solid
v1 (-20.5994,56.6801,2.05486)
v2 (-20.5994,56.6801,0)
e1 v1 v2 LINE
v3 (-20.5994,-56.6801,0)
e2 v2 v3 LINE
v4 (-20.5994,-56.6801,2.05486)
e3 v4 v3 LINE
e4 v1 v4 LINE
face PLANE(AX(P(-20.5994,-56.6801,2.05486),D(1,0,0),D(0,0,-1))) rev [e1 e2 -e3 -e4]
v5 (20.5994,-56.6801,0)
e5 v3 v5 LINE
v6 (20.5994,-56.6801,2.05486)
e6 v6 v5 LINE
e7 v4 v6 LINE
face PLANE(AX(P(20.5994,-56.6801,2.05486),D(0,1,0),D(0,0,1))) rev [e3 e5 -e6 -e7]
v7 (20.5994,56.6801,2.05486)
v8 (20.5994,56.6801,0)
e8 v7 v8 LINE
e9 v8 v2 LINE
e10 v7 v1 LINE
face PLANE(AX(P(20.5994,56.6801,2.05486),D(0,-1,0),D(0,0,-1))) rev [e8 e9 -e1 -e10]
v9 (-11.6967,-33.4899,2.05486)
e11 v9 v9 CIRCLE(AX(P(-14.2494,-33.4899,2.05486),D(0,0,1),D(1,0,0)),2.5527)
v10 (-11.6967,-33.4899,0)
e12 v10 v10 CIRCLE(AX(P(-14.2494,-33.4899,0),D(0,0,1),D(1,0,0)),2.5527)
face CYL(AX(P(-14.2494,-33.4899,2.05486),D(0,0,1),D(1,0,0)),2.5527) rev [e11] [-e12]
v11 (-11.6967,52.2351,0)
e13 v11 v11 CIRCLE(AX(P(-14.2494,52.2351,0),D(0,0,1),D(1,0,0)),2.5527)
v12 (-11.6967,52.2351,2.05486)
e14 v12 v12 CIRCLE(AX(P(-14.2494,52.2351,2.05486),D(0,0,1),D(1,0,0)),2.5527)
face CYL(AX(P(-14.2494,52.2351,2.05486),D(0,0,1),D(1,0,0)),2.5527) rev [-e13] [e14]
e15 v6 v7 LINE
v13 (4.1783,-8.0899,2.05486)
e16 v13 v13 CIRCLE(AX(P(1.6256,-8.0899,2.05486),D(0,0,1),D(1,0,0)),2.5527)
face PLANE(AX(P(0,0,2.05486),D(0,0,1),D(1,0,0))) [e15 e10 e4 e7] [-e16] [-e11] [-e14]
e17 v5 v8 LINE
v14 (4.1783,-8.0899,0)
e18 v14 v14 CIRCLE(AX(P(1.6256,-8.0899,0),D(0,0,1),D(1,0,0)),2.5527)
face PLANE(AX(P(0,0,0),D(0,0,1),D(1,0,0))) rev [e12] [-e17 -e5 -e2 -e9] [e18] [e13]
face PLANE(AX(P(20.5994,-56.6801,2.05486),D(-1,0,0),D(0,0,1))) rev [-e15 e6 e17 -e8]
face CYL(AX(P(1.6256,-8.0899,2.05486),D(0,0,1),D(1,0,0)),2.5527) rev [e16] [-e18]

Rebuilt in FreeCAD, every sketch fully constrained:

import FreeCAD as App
import Part
import Sketcher

V = App.Vector
Q = App.Units.Quantity


def add_polygon(sketch, points):
    """Adds a closed chain of lines whose ends are joined by coincident constraints."""
    first, n = sketch.GeometryCount, len(points)
    for a, b in zip(points, points[1:] + points[:1]):
        sketch.addGeometry(Part.LineSegment(App.Vector(*a, 0), App.Vector(*b, 0)), False)
    for i in range(n):
        sketch.addConstraint(Sketcher.Constraint("Coincident", first + i, 2, first + (i + 1) % n, 1))

doc = App.newDocument("Part")
params = doc.addObject("Spreadsheet::Sheet", "Params")
for row, (alias, value) in enumerate([
    ("sketch1_width", "1.622 in"),
    ("sketch1_height", "4.463 in"),
    ("pad1_length", "0.0809 in"),
    ("sketch2_diameter", "0.201 in"),
    ("hole_diameter", "0.201 in"),
], start=1):
    params.set(f"A{row}", alias)
    params.set(f"B{row}", "=" + value)
    params.setAlias(f"B{row}", alias)

body = doc.addObject("PartDesign::Body", "Body")

# Sketch on XY plane
sketch1 = body.newObject("Sketcher::SketchObject", "Sketch")
sketch1.AttachmentSupport = (doc.getObject("XY_Plane"), [""])
sketch1.MapMode = "FlatFace"
add_polygon(sketch1, [(-21, 57), (-21, -57), (21, -57), (21, 57)])  # lines 0-3
sketch1.addConstraint(Sketcher.Constraint("Vertical", 0))
sketch1.addConstraint(Sketcher.Constraint("Horizontal", 1))
sketch1.addConstraint(Sketcher.Constraint("Vertical", 2))
sketch1.addConstraint(Sketcher.Constraint("Horizontal", 3))
sketch1.addConstraint(Sketcher.Constraint("Symmetric", 0, 2, 2, 2, -1, 1))
sketch1.addConstraint(Sketcher.Constraint("DistanceX", 1, 1, 1, 2, Q("1.622 in")))
sketch1.addConstraint(Sketcher.Constraint("DistanceY", 0, 2, 0, 1, Q("4.463 in")))
sketch1.setExpression("Constraints[9]", "Params.sketch1_width")
sketch1.setExpression("Constraints[10]", "Params.sketch1_height")
pad1 = body.newObject("PartDesign::Pad", "Pad")
pad1.Profile = sketch1
pad1.setExpression("Length", "Params.pad1_length")

# Sketch on XY plane
sketch2 = body.newObject("Sketcher::SketchObject", "Sketch001")
sketch2.AttachmentSupport = (doc.getObject("XY_Plane"), [""])
sketch2.MapMode = "FlatFace"
sketch2.AttachmentOffset = App.Placement(V(0, 0, 0.0809 * 25.4), App.Rotation())
sketch2.addGeometry(Part.Circle(V(-14.2, 52.2, 0), V(0, 0, 1), 2.6), False)
sketch2.addGeometry(Part.Circle(V(1.6, -8.1, 0), V(0, 0, 1), 2.6), False)
sketch2.addGeometry(Part.Circle(V(-14.2, -33.5, 0), V(0, 0, 1), 2.6), False)
sketch2.addConstraint(Sketcher.Constraint("Equal", 0, 1))
sketch2.addConstraint(Sketcher.Constraint("Equal", 1, 2))
sketch2.addConstraint(Sketcher.Constraint("Vertical", 0, 3, 2, 3))
sketch2.addConstraint(Sketcher.Constraint("Diameter", 0, Q("0.201 in")))
sketch2.addConstraint(Sketcher.Constraint("DistanceY", 2, 3, 1, 3, Q("1 in")))
sketch2.addConstraint(Sketcher.Constraint("DistanceX", 0, 3, -1, 1, Q("0.561 in")))
sketch2.addConstraint(Sketcher.Constraint("DistanceX", -1, 1, 1, 3, Q("0.064 in")))
sketch2.addConstraint(Sketcher.Constraint("DistanceY", 1, 3, 0, 3, Q("2.375 in")))
sketch2.addConstraint(Sketcher.Constraint("DistanceY", -1, 1, 0, 3, Q("2.0565 in")))
sketch2.setExpression("Constraints[3]", "Params.sketch2_diameter")
doc.recompute()
hole = body.newObject("PartDesign::Hole", "Hole")
hole.Profile = sketch2
hole.ThreadType = "None"
hole.setExpression("Diameter", "Params.hole_diameter")
hole.DepthType = "ThroughAll"

doc.recompute()
